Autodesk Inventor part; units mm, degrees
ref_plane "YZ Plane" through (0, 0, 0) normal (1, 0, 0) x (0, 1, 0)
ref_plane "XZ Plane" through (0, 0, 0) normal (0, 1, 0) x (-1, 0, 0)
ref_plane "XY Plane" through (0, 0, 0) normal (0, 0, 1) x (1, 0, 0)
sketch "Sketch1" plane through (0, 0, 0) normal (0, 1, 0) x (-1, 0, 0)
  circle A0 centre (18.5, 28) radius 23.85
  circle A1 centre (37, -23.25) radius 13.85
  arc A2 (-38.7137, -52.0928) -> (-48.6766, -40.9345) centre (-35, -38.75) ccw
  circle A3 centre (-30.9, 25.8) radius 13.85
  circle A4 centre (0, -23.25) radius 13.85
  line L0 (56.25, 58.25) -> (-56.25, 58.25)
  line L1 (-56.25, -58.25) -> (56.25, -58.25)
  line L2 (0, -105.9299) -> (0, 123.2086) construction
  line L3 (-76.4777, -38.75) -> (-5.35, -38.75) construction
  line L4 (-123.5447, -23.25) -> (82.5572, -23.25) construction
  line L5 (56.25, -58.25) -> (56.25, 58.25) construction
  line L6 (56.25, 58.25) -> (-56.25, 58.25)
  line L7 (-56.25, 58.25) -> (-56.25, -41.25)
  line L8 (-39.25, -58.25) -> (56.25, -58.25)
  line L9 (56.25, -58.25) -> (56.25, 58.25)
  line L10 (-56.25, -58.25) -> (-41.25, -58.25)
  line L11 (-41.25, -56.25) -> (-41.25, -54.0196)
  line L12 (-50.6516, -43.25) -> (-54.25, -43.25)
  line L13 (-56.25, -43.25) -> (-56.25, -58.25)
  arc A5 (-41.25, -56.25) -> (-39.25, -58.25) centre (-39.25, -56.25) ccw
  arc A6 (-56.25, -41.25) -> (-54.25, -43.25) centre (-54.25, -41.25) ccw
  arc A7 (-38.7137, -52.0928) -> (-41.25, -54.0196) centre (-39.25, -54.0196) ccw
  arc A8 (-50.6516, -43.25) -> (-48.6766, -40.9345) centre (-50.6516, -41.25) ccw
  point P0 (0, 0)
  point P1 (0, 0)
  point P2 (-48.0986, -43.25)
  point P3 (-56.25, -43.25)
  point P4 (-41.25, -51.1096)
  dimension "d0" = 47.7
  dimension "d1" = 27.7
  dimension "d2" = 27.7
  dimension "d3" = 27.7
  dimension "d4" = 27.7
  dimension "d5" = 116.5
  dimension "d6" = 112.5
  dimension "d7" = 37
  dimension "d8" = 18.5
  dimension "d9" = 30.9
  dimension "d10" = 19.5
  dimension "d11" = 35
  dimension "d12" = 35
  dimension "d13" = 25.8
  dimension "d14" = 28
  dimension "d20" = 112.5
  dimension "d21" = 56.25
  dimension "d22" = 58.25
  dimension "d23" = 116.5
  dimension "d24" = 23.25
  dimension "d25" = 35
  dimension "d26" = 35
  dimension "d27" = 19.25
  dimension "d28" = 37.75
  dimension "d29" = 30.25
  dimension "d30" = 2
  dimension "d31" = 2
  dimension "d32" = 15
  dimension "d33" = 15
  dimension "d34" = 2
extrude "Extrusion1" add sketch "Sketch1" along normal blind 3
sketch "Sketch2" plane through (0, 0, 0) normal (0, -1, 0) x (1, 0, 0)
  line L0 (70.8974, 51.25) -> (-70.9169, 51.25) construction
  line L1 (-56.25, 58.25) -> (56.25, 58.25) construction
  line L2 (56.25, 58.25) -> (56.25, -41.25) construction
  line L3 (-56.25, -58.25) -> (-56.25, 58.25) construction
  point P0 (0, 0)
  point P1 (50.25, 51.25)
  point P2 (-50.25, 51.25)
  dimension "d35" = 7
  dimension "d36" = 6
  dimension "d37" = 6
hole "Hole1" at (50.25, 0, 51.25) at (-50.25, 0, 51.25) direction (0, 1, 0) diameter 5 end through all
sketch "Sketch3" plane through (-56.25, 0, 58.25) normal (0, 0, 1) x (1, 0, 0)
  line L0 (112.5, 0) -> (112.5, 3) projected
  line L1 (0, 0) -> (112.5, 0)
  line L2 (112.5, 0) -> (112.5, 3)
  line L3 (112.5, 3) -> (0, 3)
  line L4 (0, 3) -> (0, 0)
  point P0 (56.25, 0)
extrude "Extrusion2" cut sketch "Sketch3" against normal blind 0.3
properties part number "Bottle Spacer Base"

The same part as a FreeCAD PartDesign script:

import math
import FreeCAD as App
import Part
import Sketcher

V = App.Vector
Q = App.Units.Quantity

doc = App.newDocument("Part")
body = doc.addObject("PartDesign::Body", "Body")

sketch1 = body.newObject("Sketcher::SketchObject", "Sketch")
sketch1.AttachmentSupport = (doc.getObject("XZ_Plane"), [""])
sketch1.MapMode = "FlatFace"
sketch1.addGeometry([
    Part.ArcOfCircle(Part.Circle(V(35, -38.8, 0), V(0, 0, 1), 13.8), math.radians(-9), math.radians(286)),
    Part.ArcOfCircle(Part.Circle(V(39.2, -54, 0), V(0, 0, 1), 2), math.radians(0), math.radians(106)),
    Part.LineSegment(V(41.2, -54, 0), V(41.2, -56.2, 0)),
    Part.ArcOfCircle(Part.Circle(V(39.2, -56.2, 0), V(0, 0, 1), 2), math.radians(-90), math.radians(0)),
    Part.LineSegment(V(39.2, -58.2, 0), V(-56.2, -58.2, 0)),
    Part.LineSegment(V(-56.2, -58.2, 0), V(-56.2, 58.2, 0)),
    Part.LineSegment(V(-56.2, 58.2, 0), V(56.2, 58.2, 0)),
    Part.LineSegment(V(56.2, 58.2, 0), V(56.2, -41.2, 0)),
    Part.ArcOfCircle(Part.Circle(V(54.2, -41.2, 0), V(0, 0, 1), 2), math.radians(-90), math.radians(0)),
    Part.LineSegment(V(54.2, -43.2, 0), V(50.7, -43.2, 0)),
    Part.ArcOfCircle(Part.Circle(V(50.7, -41.2, 0), V(0, 0, 1), 2), math.radians(171), math.radians(270)),
    Part.Circle(V(0, -23.2, 0), V(0, 0, 1), 13.8),
    Part.Circle(V(-37, -23.2, 0), V(0, 0, 1), 13.8),
    Part.Circle(V(30.9, 25.8, 0), V(0, 0, 1), 13.8),
    Part.Circle(V(-18.5, 28, 0), V(0, 0, 1), 23.9),
], False)
sketch1.addConstraint([
    Sketcher.Constraint("Tangent", 0, 2, 1, 2),
    Sketcher.Constraint("Tangent", 1, 1, 2, 1),
    Sketcher.Constraint("Tangent", 2, 2, 3, 2),
    Sketcher.Constraint("Tangent", 3, 1, 4, 1),
    Sketcher.Constraint("Coincident", 4, 2, 5, 1),
    Sketcher.Constraint("Coincident", 5, 2, 6, 1),
    Sketcher.Constraint("Coincident", 6, 2, 7, 1),
    Sketcher.Constraint("Tangent", 7, 2, 8, 2),
    Sketcher.Constraint("Tangent", 8, 1, 9, 1),
    Sketcher.Constraint("Tangent", 9, 2, 10, 2),
    Sketcher.Constraint("Tangent", 10, 1, 0, 1),
    Sketcher.Constraint("Vertical", 2),
    Sketcher.Constraint("Horizontal", 4),
    Sketcher.Constraint("Vertical", 5),
    Sketcher.Constraint("Horizontal", 6),
    Sketcher.Constraint("Vertical", 7),
    Sketcher.Constraint("Horizontal", 9),
    Sketcher.Constraint("Equal", 1, 3),
    Sketcher.Constraint("Equal", 3, 8),
    Sketcher.Constraint("Equal", 8, 10),
    Sketcher.Constraint("Equal", 0, 11),
    Sketcher.Constraint("Equal", 11, 12),
    Sketcher.Constraint("Equal", 12, 13),
    Sketcher.Constraint("Symmetric", 4, 2, 6, 2, -1, 1),
    Sketcher.Constraint("PointOnObject", 11, 3, -2),
    Sketcher.Constraint("Horizontal", 11, 3, 12, 3),
    Sketcher.Constraint("Radius", 1, Q("2 mm")),
    Sketcher.Constraint("Diameter", 11, Q("27.7 mm")),
    Sketcher.Constraint("Diameter", 14, Q("47.7 mm")),
    Sketcher.Constraint("DistanceX", 6, 1, 6, 2, Q("112.5 mm")),
    Sketcher.Constraint("DistanceY", 5, 1, 5, 2, Q("116.5 mm")),
    Sketcher.Constraint("DistanceX", -1, 1, 0, 3, Q("35 mm")),
    Sketcher.Constraint("DistanceX", 12, 3, -1, 1, Q("37 mm")),
    Sketcher.Constraint("DistanceY", -1, 1, 14, 3, Q("28 mm")),
    Sketcher.Constraint("DistanceX", 1, 3, 8, 3, Q("15 mm")),
    Sketcher.Constraint("DistanceY", 3, 3, 8, 3, Q("15 mm")),
    Sketcher.Constraint("DistanceY", 4, 2, 12, 3, Q("35 mm")),
    Sketcher.Constraint("DistanceX", -1, 1, 13, 3, Q("30.9 mm")),
    Sketcher.Constraint("DistanceY", -1, 1, 13, 3, Q("25.8 mm")),
    Sketcher.Constraint("DistanceX", 14, 3, -1, 1, Q("18.5 mm")),
    Sketcher.Constraint("DistanceY", 4, 2, 0, 3, Q("19.5 mm")),
])
pad1 = body.newObject("PartDesign::Pad", "Pad")
pad1.Profile = sketch1
pad1.Length = 3
pad1.Reversed = True

sketch2 = body.newObject("Sketcher::SketchObject", "Sketch001")
sketch2.AttachmentSupport = (doc.getObject("XZ_Plane"), [""])
sketch2.MapMode = "FlatFace"
sketch2.addGeometry([
    Part.Circle(V(50.2, 51.2, 0), V(0, 0, 1), 2.5),
    Part.Circle(V(-50.2, 51.2, 0), V(0, 0, 1), 2.5),
], False)
sketch2.addConstraint([
    Sketcher.Constraint("Equal", 0, 1),
    Sketcher.Constraint("Symmetric", 0, 3, 1, 3, -2),
    Sketcher.Constraint("Diameter", 0, Q("5 mm")),
    Sketcher.Constraint("DistanceX", 1, 3, 0, 3, Q("100.5 mm")),
    Sketcher.Constraint("DistanceY", -1, 1, 0, 3, Q("51.25 mm")),
])
doc.recompute()
hole = body.newObject("PartDesign::Hole", "Hole")
hole.Profile = sketch2
hole.ThreadType = "None"
hole.Diameter = 5
hole.DepthType = "ThroughAll"

sketch3 = body.newObject("Sketcher::SketchObject", "Sketch002")
sketch3.AttachmentSupport = (doc.getObject("XY_Plane"), [""])
sketch3.MapMode = "FlatFace"
sketch3.AttachmentOffset = App.Placement(V(0, 0, 58.25), App.Rotation())
sketch3.addGeometry([
    Part.LineSegment(V(-56.2, 0, 0), V(56.2, 0, 0)),
    Part.LineSegment(V(56.2, 0, 0), V(56.2, 3, 0)),
    Part.LineSegment(V(56.2, 3, 0), V(-56.2, 3, 0)),
    Part.LineSegment(V(-56.2, 3, 0), V(-56.2, 0, 0)),
], False)
sketch3.addConstraint([
    Sketcher.Constraint("Coincident", 0, 2, 1, 1),
    Sketcher.Constraint("Coincident", 1, 2, 2, 1),
    Sketcher.Constraint("Coincident", 2, 2, 3, 1),
    Sketcher.Constraint("Coincident", 3, 2, 0, 1),
    Sketcher.Constraint("Horizontal", 0),
    Sketcher.Constraint("Vertical", 1),
    Sketcher.Constraint("Horizontal", 2),
    Sketcher.Constraint("Vertical", 3),
    Sketcher.Constraint("Symmetric", 0, 2, 3, 2, -1, 1),
    Sketcher.Constraint("DistanceY", 1, 1, 1, 2, Q("3 mm")),
    Sketcher.Constraint("DistanceX", 0, 1, 0, 2, Q("112.5 mm")),
])
pocket1 = body.newObject("PartDesign::Pocket", "Pocket")
pocket1.Profile = sketch3
pocket1.Length = 0.3

doc.recompute()
